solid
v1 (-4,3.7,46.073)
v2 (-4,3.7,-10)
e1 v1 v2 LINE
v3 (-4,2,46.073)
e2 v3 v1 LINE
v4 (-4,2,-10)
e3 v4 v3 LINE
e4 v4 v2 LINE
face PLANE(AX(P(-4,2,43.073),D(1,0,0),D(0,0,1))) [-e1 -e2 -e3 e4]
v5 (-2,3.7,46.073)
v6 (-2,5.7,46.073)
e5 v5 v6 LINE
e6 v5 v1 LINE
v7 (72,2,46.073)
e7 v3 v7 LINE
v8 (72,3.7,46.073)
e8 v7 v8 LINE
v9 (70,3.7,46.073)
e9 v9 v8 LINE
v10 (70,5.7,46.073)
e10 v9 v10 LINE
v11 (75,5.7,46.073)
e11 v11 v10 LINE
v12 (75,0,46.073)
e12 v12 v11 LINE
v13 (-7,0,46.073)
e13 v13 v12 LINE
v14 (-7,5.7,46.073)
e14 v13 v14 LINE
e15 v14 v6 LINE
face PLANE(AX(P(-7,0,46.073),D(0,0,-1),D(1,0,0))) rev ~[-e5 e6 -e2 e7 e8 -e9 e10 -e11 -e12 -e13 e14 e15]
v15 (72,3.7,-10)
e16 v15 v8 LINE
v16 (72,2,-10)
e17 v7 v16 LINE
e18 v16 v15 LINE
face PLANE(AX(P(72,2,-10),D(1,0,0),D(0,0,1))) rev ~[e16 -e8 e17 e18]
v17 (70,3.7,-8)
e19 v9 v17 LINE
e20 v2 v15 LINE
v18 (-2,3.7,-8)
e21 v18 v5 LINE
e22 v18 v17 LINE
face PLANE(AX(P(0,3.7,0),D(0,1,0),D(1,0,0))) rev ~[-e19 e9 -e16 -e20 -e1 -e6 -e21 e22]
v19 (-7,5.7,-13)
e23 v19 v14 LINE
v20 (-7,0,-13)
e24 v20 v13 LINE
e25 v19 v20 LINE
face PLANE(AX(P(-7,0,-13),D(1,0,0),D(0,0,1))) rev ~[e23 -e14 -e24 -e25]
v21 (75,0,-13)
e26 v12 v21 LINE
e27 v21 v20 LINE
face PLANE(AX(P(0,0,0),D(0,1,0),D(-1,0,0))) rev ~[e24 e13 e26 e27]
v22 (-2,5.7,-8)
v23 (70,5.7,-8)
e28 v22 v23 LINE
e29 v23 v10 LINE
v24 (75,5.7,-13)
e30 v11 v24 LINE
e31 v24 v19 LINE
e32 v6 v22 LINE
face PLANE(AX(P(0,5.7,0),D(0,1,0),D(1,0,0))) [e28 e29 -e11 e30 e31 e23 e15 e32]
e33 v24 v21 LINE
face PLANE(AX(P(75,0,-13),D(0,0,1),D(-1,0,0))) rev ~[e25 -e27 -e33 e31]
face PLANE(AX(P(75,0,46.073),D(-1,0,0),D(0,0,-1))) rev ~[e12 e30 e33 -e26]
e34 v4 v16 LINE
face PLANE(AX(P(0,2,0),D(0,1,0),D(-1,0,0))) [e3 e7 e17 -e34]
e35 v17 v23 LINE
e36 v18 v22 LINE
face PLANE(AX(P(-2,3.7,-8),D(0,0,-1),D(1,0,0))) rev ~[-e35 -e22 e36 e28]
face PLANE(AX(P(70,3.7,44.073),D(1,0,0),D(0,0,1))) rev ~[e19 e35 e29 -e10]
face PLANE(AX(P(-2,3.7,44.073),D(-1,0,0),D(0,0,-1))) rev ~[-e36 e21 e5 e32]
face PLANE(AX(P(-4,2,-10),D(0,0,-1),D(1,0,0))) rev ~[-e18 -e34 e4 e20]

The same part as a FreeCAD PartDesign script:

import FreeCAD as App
import Part
import Sketcher

V = App.Vector

doc = App.newDocument("Part")
params = doc.addObject("Spreadsheet::Sheet", "Params")
for row, (alias, value) in enumerate([
    ("sketch1_width", "82 mm"),
    ("pad1_length", "2 mm"),
    ("sketch2_width", "3 mm"),
    ("sketch2_width2", "82 mm"),
    ("pad2_length", "1.7 mm"),
    ("sketch3_width", "82 mm"),
    ("sketch3_width2", "5 mm"),
    ("pad3_length", "2 mm"),
], start=1):
    params.set(f"A{row}", alias)
    params.set(f"B{row}", "=" + value)
    params.setAlias(f"B{row}", alias)

body = doc.addObject("PartDesign::Body", "Body")

sketch1 = body.newObject("Sketcher::SketchObject", "Sketch")
sketch1.AttachmentSupport = (doc.getObject("XZ_Plane"), [""])
sketch1.MapMode = "FlatFace"
sketch1.addGeometry([
    Part.LineSegment(V(-7, -13, 0), V(-7, 46.073, 0)),
    Part.LineSegment(V(-7, 46.073, 0), V(75, 46.073, 0)),
    Part.LineSegment(V(75, 46.073, 0), V(75, -13, 0)),
    Part.LineSegment(V(75, -13, 0), V(-7, -13, 0)),
], False)
sketch1.addConstraint([
    Sketcher.Constraint("Coincident", 0, 2, 1, 1),
    Sketcher.Constraint("Coincident", 1, 2, 2, 1),
    Sketcher.Constraint("Coincident", 2, 2, 3, 1),
    Sketcher.Constraint("Coincident", 3, 2, 0, 1),
    Sketcher.Constraint("Vertical", 0),
    Sketcher.Constraint("Horizontal", 1),
    Sketcher.Constraint("Vertical", 2),
    Sketcher.Constraint("Horizontal", 3),
    Sketcher.Constraint("DistanceX", 1, 1, 1, 2, 82.0),
    Sketcher.Constraint("DistanceY", 0, 1, 0, 2, 59.073),
    Sketcher.Constraint("DistanceX", 0, 2, -1, 1, 7.0),
    Sketcher.Constraint("DistanceY", 2, 2, -1, 1, 13.0),
])
sketch1.setExpression("Constraints[8]", "Params.sketch1_width")
pad1 = body.newObject("PartDesign::Pad", "Pad")
pad1.Profile = sketch1
pad1.setExpression("Length", "Params.pad1_length")
pad1.Reversed = True

sketch2 = body.newObject("Sketcher::SketchObject", "Sketch001")
sketch2.AttachmentSupport = (doc.getObject("XZ_Plane"), [""])
sketch2.MapMode = "FlatFace"
sketch2.AttachmentOffset = App.Placement(V(0, 0, -2), App.Rotation())
sketch2.addGeometry([
    Part.LineSegment(V(72, 46.073, 0), V(75, 46.073, 0)),
    Part.LineSegment(V(75, 46.073, 0), V(75, -13, 0)),
    Part.LineSegment(V(75, -13, 0), V(-7, -13, 0)),
    Part.LineSegment(V(-7, -13, 0), V(-7, 46.073, 0)),
    Part.LineSegment(V(-7, 46.073, 0), V(-4, 46.073, 0)),
    Part.LineSegment(V(-4, 46.073, 0), V(-4, -10, 0)),
    Part.LineSegment(V(-4, -10, 0), V(72, -10, 0)),
    Part.LineSegment(V(72, -10, 0), V(72, 46.073, 0)),
], False)
sketch2.addConstraint([
    Sketcher.Constraint("Coincident", 0, 2, 1, 1),
    Sketcher.Constraint("Coincident", 1, 2, 2, 1),
    Sketcher.Constraint("Coincident", 2, 2, 3, 1),
    Sketcher.Constraint("Coincident", 3, 2, 4, 1),
    Sketcher.Constraint("Coincident", 4, 2, 5, 1),
    Sketcher.Constraint("Coincident", 5, 2, 6, 1),
    Sketcher.Constraint("Coincident", 6, 2, 7, 1),
    Sketcher.Constraint("Coincident", 7, 2, 0, 1),
    Sketcher.Constraint("Horizontal", 0),
    Sketcher.Constraint("Vertical", 1),
    Sketcher.Constraint("Horizontal", 2),
    Sketcher.Constraint("Vertical", 3),
    Sketcher.Constraint("Horizontal", 4),
    Sketcher.Constraint("Vertical", 5),
    Sketcher.Constraint("Horizontal", 6),
    Sketcher.Constraint("Vertical", 7),
    Sketcher.Constraint("Horizontal", 0, 2, 3, 2),
    Sketcher.Constraint("Equal", 0, 4),
    Sketcher.Constraint("DistanceX", 0, 1, 0, 2, 3.0),
    Sketcher.Constraint("DistanceY", 2, 2, 5, 2, 3.0),
    Sketcher.Constraint("DistanceX", 2, 2, 2, 1, 82.0),
    Sketcher.Constraint("DistanceX", -1, 1, 0, 2, 75.0),
    Sketcher.Constraint("DistanceY", 1, 2, -1, 1, 13.0),
    Sketcher.Constraint("DistanceY", 1, 2, 1, 1, 59.073),
])
sketch2.setExpression("Constraints[18]", "Params.sketch2_width")
sketch2.setExpression("Constraints[20]", "Params.sketch2_width2")
pad2 = body.newObject("PartDesign::Pad", "Pad001")
pad2.Profile = sketch2
pad2.setExpression("Length", "Params.pad2_length")
pad2.Reversed = True

sketch3 = body.newObject("Sketcher::SketchObject", "Sketch002")
sketch3.AttachmentSupport = (doc.getObject("XZ_Plane"), [""])
sketch3.MapMode = "FlatFace"
sketch3.AttachmentOffset = App.Placement(V(0, 0, -3.7), App.Rotation())
sketch3.addGeometry([
    Part.LineSegment(V(75, 46.073, 0), V(75, -13, 0)),
    Part.LineSegment(V(75, -13, 0), V(-7, -13, 0)),
    Part.LineSegment(V(-7, -13, 0), V(-7, 46.073, 0)),
    Part.LineSegment(V(-7, 46.073, 0), V(-2, 46.073, 0)),
    Part.LineSegment(V(-2, 46.073, 0), V(-2, -8, 0)),
    Part.LineSegment(V(-2, -8, 0), V(70, -8, 0)),
    Part.LineSegment(V(70, -8, 0), V(70, 46.073, 0)),
    Part.LineSegment(V(70, 46.073, 0), V(75, 46.073, 0)),
], False)
sketch3.addConstraint([
    Sketcher.Constraint("Coincident", 0, 2, 1, 1),
    Sketcher.Constraint("Coincident", 1, 2, 2, 1),
    Sketcher.Constraint("Coincident", 2, 2, 3, 1),
    Sketcher.Constraint("Coincident", 3, 2, 4, 1),
    Sketcher.Constraint("Coincident", 4, 2, 5, 1),
    Sketcher.Constraint("Coincident", 5, 2, 6, 1),
    Sketcher.Constraint("Coincident", 6, 2, 7, 1),
    Sketcher.Constraint("Coincident", 7, 2, 0, 1),
    Sketcher.Constraint("Vertical", 0),
    Sketcher.Constraint("Horizontal", 1),
    Sketcher.Constraint("Vertical", 2),
    Sketcher.Constraint("Horizontal", 3),
    Sketcher.Constraint("Vertical", 4),
    Sketcher.Constraint("Horizontal", 5),
    Sketcher.Constraint("Vertical", 6),
    Sketcher.Constraint("Horizontal", 7),
    Sketcher.Constraint("Horizontal", 3, 2, 6, 2),
    Sketcher.Constraint("Equal", 3, 7),
    Sketcher.Constraint("DistanceX", 3, 2, -1, 1, 2.0),
    Sketcher.Constraint("DistanceX", 1, 2, 1, 1, 82.0),
    Sketcher.Constraint("DistanceX", 3, 1, 3, 2, 5.0),
    Sketcher.Constraint("DistanceY", 0, 2, -1, 1, 13.0),
    Sketcher.Constraint("DistanceY", 4, 2, -1, 1, 8.0),
    Sketcher.Constraint("DistanceY", 0, 2, 0, 1, 59.073),
])
sketch3.setExpression("Constraints[19]", "Params.sketch3_width")
sketch3.setExpression("Constraints[20]", "Params.sketch3_width2")
pad3 = body.newObject("PartDesign::Pad", "Pad002")
pad3.Profile = sketch3
pad3.setExpression("Length", "Params.pad3_length")
pad3.Reversed = True

doc.recompute()
